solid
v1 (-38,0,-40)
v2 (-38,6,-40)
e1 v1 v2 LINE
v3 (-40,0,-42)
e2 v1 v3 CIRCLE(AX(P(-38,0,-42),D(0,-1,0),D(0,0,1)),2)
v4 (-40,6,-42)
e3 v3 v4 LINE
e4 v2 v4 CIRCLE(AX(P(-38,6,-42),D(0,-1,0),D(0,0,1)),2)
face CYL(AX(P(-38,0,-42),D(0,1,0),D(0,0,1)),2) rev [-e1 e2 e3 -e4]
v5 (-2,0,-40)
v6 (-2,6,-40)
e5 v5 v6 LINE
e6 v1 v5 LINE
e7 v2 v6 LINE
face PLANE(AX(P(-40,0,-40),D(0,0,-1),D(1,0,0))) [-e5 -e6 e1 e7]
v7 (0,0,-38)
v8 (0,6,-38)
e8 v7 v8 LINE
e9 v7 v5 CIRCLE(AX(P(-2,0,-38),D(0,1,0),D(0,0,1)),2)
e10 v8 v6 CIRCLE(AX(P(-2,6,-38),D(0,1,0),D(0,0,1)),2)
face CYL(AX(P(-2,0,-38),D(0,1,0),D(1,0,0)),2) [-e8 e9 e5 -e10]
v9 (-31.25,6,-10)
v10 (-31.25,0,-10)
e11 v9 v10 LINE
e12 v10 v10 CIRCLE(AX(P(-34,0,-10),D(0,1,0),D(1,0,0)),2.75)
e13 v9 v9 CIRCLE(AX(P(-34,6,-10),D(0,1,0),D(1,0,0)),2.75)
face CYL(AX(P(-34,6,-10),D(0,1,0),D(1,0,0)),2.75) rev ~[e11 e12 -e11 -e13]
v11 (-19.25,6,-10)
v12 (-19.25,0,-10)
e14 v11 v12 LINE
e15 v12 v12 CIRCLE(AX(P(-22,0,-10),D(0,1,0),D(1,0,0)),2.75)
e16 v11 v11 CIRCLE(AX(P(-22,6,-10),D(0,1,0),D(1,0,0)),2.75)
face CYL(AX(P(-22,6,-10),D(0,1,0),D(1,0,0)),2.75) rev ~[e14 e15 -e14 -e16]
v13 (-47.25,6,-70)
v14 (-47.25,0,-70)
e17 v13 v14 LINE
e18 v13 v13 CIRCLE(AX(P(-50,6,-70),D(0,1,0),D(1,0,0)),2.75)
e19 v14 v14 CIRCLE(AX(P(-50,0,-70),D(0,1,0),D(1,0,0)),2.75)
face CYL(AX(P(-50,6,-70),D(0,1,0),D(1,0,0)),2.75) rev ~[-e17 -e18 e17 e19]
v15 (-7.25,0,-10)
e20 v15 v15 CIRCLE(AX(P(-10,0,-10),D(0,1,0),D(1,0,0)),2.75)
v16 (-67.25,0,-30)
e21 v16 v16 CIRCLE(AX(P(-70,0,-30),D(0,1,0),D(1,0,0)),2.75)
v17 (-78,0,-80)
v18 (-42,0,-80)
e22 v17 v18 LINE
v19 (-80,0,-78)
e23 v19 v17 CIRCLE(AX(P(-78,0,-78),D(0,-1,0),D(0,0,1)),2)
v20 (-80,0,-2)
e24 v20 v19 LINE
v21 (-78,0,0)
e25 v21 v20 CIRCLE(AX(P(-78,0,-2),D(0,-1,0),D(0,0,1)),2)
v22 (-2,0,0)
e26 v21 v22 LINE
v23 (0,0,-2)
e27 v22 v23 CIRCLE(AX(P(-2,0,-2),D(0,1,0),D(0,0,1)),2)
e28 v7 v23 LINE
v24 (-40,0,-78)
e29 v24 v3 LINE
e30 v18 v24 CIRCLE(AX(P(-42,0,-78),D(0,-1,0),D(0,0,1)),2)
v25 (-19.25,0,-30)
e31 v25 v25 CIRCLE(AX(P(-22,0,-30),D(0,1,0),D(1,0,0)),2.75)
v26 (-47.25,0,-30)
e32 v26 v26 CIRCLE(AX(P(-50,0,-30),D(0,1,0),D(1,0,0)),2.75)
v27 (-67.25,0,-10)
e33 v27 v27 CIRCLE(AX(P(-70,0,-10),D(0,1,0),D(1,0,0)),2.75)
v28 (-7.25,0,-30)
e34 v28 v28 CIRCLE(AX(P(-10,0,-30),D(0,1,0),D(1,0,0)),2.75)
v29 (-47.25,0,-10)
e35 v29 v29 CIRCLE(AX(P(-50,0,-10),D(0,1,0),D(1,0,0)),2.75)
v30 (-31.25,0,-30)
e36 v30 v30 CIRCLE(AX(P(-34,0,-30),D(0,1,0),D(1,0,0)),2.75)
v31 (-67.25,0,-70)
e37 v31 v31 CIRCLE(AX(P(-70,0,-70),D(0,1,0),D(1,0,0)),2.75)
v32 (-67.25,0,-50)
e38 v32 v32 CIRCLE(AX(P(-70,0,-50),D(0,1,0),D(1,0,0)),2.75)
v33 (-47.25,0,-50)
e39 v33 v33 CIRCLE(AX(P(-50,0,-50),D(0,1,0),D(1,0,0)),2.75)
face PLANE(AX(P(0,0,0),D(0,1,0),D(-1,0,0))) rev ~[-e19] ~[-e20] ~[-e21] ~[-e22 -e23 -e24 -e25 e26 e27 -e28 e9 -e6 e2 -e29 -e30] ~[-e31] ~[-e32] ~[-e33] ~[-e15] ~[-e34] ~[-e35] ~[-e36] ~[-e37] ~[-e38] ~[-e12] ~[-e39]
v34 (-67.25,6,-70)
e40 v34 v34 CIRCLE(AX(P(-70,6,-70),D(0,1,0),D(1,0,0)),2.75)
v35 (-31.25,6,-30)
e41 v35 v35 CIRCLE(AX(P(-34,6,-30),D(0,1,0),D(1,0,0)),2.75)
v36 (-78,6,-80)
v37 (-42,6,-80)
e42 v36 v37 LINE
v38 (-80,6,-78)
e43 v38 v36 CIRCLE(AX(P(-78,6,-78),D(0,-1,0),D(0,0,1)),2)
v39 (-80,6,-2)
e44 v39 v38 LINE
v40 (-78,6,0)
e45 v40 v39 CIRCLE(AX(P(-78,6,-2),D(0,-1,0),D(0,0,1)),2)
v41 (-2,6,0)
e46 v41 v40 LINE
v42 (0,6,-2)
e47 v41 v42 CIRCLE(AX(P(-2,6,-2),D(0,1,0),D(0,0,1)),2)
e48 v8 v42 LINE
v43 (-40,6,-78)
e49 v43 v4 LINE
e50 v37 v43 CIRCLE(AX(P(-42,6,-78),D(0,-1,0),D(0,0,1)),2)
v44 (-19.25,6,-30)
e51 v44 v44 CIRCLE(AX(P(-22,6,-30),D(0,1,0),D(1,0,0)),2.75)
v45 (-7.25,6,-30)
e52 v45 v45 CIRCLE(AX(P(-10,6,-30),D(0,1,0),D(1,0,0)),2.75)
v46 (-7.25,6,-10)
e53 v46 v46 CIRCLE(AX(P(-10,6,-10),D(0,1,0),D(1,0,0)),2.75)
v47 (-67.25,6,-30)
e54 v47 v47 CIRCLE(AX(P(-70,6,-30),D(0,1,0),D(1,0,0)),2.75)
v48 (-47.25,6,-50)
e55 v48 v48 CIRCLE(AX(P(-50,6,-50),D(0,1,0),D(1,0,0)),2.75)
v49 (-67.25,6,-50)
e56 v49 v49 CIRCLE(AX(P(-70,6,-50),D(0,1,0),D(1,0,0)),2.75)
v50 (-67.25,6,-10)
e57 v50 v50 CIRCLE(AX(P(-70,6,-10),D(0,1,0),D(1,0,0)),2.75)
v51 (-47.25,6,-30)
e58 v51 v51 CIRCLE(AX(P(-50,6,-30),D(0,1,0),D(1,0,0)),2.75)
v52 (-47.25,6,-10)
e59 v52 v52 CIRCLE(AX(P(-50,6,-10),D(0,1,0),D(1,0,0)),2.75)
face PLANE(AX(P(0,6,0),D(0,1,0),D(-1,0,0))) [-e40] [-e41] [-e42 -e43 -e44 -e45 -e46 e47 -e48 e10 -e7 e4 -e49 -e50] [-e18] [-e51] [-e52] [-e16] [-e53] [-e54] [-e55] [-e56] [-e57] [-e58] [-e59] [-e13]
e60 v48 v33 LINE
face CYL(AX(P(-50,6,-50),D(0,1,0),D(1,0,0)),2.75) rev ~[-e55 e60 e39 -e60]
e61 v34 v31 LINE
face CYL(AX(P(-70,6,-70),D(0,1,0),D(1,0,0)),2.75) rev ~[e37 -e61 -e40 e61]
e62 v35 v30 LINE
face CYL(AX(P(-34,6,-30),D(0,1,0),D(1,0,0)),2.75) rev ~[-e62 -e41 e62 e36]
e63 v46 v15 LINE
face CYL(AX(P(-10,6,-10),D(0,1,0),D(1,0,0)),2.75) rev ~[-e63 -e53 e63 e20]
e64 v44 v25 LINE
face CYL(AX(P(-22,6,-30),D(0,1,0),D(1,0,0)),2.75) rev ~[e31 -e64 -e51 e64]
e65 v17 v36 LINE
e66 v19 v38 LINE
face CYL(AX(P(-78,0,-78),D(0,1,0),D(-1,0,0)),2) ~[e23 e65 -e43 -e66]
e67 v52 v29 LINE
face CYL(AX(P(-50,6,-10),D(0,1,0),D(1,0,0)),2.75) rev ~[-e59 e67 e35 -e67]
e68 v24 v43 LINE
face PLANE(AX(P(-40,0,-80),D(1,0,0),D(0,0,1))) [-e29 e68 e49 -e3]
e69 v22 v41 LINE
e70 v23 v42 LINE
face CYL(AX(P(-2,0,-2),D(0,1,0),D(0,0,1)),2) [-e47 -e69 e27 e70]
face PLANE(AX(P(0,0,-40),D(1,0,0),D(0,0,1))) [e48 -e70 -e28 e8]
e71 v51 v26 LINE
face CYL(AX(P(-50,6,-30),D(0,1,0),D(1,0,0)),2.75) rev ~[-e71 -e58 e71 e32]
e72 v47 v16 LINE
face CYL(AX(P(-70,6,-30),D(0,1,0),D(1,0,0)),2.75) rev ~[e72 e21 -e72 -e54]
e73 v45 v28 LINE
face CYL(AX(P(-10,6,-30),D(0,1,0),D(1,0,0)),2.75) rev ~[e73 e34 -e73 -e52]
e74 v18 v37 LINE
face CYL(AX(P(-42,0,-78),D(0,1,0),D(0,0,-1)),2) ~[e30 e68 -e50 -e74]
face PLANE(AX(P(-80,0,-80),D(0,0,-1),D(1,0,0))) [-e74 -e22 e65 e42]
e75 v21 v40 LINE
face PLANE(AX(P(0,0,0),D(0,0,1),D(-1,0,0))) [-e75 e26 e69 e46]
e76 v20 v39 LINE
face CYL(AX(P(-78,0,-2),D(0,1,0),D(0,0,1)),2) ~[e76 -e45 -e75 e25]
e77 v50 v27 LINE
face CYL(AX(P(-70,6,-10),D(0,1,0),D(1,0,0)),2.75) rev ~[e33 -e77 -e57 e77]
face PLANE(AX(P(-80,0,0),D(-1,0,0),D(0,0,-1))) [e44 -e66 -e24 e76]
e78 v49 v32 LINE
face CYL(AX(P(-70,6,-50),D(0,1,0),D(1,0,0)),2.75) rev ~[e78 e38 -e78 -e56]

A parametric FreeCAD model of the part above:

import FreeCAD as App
import Part
import Sketcher
from FreeCAD import Vector


def edges_at(feature, points):
    """Names of the edges that pass closest to the given points."""
    edges = feature.Shape.Edges
    near = lambda p: min(range(len(edges)), key=lambda i: edges[i].distToShape(Part.Vertex(*p))[0])
    return sorted({f"Edge{near(p) + 1}" for p in points})

doc = App.newDocument("Part")
body = doc.addObject("PartDesign::Body", "Body")

# Sketch on XZ plane
sketch1 = body.newObject("Sketcher::SketchObject", "Sketch")
sketch1.AttachmentSupport = (doc.getObject("XZ_Plane"), [""])
sketch1.MapMode = "FlatFace"
sketch1.addGeometry([
    Part.LineSegment(Vector(0, 0, 0), Vector(0, -40, 0)),  # 0
    Part.LineSegment(Vector(0, -40, 0), Vector(-40, -40, 0)),  # 1
    Part.LineSegment(Vector(-40, -40, 0), Vector(-40, -80, 0)),  # 2
    Part.LineSegment(Vector(-40, -80, 0), Vector(-80, -80, 0)),  # 3
    Part.LineSegment(Vector(-80, -80, 0), Vector(-80, 0, 0)),  # 4
    Part.LineSegment(Vector(-80, 0, 0), Vector(0, 0, 0)),  # 5
], False)
sketch1.addConstraint([
    Sketcher.Constraint("Coincident", 0, 2, 1, 1),
    Sketcher.Constraint("Coincident", 1, 2, 2, 1),
    Sketcher.Constraint("Coincident", 2, 2, 3, 1),
    Sketcher.Constraint("Coincident", 3, 2, 4, 1),
    Sketcher.Constraint("Coincident", 4, 2, 5, 1),
    Sketcher.Constraint("Coincident", 5, 2, 0, 1),
    Sketcher.Constraint("Vertical", 0),
    Sketcher.Constraint("Horizontal", 1),
    Sketcher.Constraint("Vertical", 2),
    Sketcher.Constraint("Horizontal", 3),
    Sketcher.Constraint("Vertical", 4),
    Sketcher.Constraint("Horizontal", 5),
    Sketcher.Constraint("Coincident", 5, 2, -1, 1),
    Sketcher.Constraint("Equal", 1, 3),
    Sketcher.Constraint("Equal", 3, 0),
    Sketcher.Constraint("Equal", 0, 2),
    Sketcher.Constraint("DistanceX", 1, 2, 1, 1, 40.0),
])
pad1 = body.newObject("PartDesign::Pad", "Pad")
pad1.Profile = sketch1
pad1.Length = 6
pad1.Reversed = True

# Sketch on XZ plane
sketch2 = body.newObject("Sketcher::SketchObject", "Sketch001")
sketch2.AttachmentSupport = (doc.getObject("XZ_Plane"), [""])
sketch2.MapMode = "FlatFace"
sketch2.AttachmentOffset = App.Placement(Vector(0, 0, -6), App.Rotation())
sketch2.addGeometry([
    Part.Circle(Vector(-10, -10, 0), Vector(0, 0, 1), 2.75),  # 0
    Part.Circle(Vector(-22, -10, 0), Vector(0, 0, 1), 2.75),  # 1
    Part.Circle(Vector(-34, -10, 0), Vector(0, 0, 1), 2.75),  # 2
    Part.Circle(Vector(-10, -30, 0), Vector(0, 0, 1), 2.75),  # 3
    Part.Circle(Vector(-22, -30, 0), Vector(0, 0, 1), 2.75),  # 4
    Part.Circle(Vector(-34, -30, 0), Vector(0, 0, 1), 2.75),  # 5
    Part.Circle(Vector(-70, -70, 0), Vector(0, 0, 1), 2.75),  # 6
    Part.Circle(Vector(-70, -50, 0), Vector(0, 0, 1), 2.75),  # 7
    Part.Circle(Vector(-70, -30, 0), Vector(0, 0, 1), 2.75),  # 8
    Part.Circle(Vector(-70, -10, 0), Vector(0, 0, 1), 2.75),  # 9
    Part.Circle(Vector(-50, -70, 0), Vector(0, 0, 1), 2.75),  # 10
    Part.Circle(Vector(-50, -50, 0), Vector(0, 0, 1), 2.75),  # 11
    Part.Circle(Vector(-50, -30, 0), Vector(0, 0, 1), 2.75),  # 12
    Part.Circle(Vector(-50, -10, 0), Vector(0, 0, 1), 2.75),  # 13
], False)
sketch2.addConstraint([
    Sketcher.Constraint("Equal", 0, 1),
    Sketcher.Constraint("Equal", 1, 2),
    Sketcher.Constraint("Equal", 2, 3),
    Sketcher.Constraint("Equal", 3, 4),
    Sketcher.Constraint("Equal", 4, 5),
    Sketcher.Constraint("Equal", 5, 6),
    Sketcher.Constraint("Equal", 6, 7),
    Sketcher.Constraint("Equal", 7, 8),
    Sketcher.Constraint("Equal", 8, 9),
    Sketcher.Constraint("Equal", 9, 10),
    Sketcher.Constraint("Equal", 10, 11),
    Sketcher.Constraint("Equal", 11, 12),
    Sketcher.Constraint("Equal", 12, 13),
    Sketcher.Constraint("Horizontal", 0, 3, 1, 3),
    Sketcher.Constraint("Horizontal", 1, 3, 2, 3),
    Sketcher.Constraint("Horizontal", 3, 3, 4, 3),
    Sketcher.Constraint("Horizontal", 4, 3, 5, 3),
    Sketcher.Constraint("Horizontal", 5, 3, 8, 3),
    Sketcher.Constraint("Horizontal", 2, 3, 9, 3),
    Sketcher.Constraint("Horizontal", 6, 3, 10, 3),
    Sketcher.Constraint("Horizontal", 7, 3, 11, 3),
    Sketcher.Constraint("Horizontal", 8, 3, 12, 3),
    Sketcher.Constraint("Horizontal", 9, 3, 13, 3),
    Sketcher.Constraint("Vertical", 0, 3, 3, 3),
    Sketcher.Constraint("Vertical", 1, 3, 4, 3),
    Sketcher.Constraint("Vertical", 2, 3, 5, 3),
    Sketcher.Constraint("Vertical", 6, 3, 7, 3),
    Sketcher.Constraint("Vertical", 7, 3, 8, 3),
    Sketcher.Constraint("Vertical", 8, 3, 9, 3),
    Sketcher.Constraint("Vertical", 10, 3, 11, 3),
    Sketcher.Constraint("Vertical", 11, 3, 12, 3),
    Sketcher.Constraint("Vertical", 12, 3, 13, 3),
    Sketcher.Constraint("Diameter", 0, 5.5),
    Sketcher.Constraint("DistanceX", 0, 3, -1, 1, 10.0),
    Sketcher.Constraint("DistanceY", 0, 3, -1, 1, 10.0),
    Sketcher.Constraint("DistanceX", 1, 3, 0, 3, 12.0),
    Sketcher.Constraint("DistanceX", 2, 3, 1, 3, 12.0),
    Sketcher.Constraint("DistanceY", 3, 3, 0, 3, 20.0),
    Sketcher.Constraint("DistanceY", 6, 3, 7, 3, 20.0),
    Sketcher.Constraint("DistanceY", 7, 3, 5, 3, 20.0),
    Sketcher.Constraint("DistanceX", 6, 3, 10, 3, 20.0),
    Sketcher.Constraint("DistanceX", 6, 3, -1, 1, 70.0),
])
pocket1 = body.newObject("PartDesign::Pocket", "Pocket")
pocket1.Profile = sketch2
pocket1.Type = "UpToFirst"
pocket1.Reversed = True
doc.recompute()

fillet = body.newObject("PartDesign::Fillet", "Fillet")
fillet.Base = (pocket1, edges_at(pocket1, [
    (0, 3, 0),
    (0, 3, -40),
    (-40, 3, -80),
    (-80, 3, 0),
    (-80, 3, -80),
    (-40, 3, -40),
]))
fillet.Radius = 2

doc.recompute()
